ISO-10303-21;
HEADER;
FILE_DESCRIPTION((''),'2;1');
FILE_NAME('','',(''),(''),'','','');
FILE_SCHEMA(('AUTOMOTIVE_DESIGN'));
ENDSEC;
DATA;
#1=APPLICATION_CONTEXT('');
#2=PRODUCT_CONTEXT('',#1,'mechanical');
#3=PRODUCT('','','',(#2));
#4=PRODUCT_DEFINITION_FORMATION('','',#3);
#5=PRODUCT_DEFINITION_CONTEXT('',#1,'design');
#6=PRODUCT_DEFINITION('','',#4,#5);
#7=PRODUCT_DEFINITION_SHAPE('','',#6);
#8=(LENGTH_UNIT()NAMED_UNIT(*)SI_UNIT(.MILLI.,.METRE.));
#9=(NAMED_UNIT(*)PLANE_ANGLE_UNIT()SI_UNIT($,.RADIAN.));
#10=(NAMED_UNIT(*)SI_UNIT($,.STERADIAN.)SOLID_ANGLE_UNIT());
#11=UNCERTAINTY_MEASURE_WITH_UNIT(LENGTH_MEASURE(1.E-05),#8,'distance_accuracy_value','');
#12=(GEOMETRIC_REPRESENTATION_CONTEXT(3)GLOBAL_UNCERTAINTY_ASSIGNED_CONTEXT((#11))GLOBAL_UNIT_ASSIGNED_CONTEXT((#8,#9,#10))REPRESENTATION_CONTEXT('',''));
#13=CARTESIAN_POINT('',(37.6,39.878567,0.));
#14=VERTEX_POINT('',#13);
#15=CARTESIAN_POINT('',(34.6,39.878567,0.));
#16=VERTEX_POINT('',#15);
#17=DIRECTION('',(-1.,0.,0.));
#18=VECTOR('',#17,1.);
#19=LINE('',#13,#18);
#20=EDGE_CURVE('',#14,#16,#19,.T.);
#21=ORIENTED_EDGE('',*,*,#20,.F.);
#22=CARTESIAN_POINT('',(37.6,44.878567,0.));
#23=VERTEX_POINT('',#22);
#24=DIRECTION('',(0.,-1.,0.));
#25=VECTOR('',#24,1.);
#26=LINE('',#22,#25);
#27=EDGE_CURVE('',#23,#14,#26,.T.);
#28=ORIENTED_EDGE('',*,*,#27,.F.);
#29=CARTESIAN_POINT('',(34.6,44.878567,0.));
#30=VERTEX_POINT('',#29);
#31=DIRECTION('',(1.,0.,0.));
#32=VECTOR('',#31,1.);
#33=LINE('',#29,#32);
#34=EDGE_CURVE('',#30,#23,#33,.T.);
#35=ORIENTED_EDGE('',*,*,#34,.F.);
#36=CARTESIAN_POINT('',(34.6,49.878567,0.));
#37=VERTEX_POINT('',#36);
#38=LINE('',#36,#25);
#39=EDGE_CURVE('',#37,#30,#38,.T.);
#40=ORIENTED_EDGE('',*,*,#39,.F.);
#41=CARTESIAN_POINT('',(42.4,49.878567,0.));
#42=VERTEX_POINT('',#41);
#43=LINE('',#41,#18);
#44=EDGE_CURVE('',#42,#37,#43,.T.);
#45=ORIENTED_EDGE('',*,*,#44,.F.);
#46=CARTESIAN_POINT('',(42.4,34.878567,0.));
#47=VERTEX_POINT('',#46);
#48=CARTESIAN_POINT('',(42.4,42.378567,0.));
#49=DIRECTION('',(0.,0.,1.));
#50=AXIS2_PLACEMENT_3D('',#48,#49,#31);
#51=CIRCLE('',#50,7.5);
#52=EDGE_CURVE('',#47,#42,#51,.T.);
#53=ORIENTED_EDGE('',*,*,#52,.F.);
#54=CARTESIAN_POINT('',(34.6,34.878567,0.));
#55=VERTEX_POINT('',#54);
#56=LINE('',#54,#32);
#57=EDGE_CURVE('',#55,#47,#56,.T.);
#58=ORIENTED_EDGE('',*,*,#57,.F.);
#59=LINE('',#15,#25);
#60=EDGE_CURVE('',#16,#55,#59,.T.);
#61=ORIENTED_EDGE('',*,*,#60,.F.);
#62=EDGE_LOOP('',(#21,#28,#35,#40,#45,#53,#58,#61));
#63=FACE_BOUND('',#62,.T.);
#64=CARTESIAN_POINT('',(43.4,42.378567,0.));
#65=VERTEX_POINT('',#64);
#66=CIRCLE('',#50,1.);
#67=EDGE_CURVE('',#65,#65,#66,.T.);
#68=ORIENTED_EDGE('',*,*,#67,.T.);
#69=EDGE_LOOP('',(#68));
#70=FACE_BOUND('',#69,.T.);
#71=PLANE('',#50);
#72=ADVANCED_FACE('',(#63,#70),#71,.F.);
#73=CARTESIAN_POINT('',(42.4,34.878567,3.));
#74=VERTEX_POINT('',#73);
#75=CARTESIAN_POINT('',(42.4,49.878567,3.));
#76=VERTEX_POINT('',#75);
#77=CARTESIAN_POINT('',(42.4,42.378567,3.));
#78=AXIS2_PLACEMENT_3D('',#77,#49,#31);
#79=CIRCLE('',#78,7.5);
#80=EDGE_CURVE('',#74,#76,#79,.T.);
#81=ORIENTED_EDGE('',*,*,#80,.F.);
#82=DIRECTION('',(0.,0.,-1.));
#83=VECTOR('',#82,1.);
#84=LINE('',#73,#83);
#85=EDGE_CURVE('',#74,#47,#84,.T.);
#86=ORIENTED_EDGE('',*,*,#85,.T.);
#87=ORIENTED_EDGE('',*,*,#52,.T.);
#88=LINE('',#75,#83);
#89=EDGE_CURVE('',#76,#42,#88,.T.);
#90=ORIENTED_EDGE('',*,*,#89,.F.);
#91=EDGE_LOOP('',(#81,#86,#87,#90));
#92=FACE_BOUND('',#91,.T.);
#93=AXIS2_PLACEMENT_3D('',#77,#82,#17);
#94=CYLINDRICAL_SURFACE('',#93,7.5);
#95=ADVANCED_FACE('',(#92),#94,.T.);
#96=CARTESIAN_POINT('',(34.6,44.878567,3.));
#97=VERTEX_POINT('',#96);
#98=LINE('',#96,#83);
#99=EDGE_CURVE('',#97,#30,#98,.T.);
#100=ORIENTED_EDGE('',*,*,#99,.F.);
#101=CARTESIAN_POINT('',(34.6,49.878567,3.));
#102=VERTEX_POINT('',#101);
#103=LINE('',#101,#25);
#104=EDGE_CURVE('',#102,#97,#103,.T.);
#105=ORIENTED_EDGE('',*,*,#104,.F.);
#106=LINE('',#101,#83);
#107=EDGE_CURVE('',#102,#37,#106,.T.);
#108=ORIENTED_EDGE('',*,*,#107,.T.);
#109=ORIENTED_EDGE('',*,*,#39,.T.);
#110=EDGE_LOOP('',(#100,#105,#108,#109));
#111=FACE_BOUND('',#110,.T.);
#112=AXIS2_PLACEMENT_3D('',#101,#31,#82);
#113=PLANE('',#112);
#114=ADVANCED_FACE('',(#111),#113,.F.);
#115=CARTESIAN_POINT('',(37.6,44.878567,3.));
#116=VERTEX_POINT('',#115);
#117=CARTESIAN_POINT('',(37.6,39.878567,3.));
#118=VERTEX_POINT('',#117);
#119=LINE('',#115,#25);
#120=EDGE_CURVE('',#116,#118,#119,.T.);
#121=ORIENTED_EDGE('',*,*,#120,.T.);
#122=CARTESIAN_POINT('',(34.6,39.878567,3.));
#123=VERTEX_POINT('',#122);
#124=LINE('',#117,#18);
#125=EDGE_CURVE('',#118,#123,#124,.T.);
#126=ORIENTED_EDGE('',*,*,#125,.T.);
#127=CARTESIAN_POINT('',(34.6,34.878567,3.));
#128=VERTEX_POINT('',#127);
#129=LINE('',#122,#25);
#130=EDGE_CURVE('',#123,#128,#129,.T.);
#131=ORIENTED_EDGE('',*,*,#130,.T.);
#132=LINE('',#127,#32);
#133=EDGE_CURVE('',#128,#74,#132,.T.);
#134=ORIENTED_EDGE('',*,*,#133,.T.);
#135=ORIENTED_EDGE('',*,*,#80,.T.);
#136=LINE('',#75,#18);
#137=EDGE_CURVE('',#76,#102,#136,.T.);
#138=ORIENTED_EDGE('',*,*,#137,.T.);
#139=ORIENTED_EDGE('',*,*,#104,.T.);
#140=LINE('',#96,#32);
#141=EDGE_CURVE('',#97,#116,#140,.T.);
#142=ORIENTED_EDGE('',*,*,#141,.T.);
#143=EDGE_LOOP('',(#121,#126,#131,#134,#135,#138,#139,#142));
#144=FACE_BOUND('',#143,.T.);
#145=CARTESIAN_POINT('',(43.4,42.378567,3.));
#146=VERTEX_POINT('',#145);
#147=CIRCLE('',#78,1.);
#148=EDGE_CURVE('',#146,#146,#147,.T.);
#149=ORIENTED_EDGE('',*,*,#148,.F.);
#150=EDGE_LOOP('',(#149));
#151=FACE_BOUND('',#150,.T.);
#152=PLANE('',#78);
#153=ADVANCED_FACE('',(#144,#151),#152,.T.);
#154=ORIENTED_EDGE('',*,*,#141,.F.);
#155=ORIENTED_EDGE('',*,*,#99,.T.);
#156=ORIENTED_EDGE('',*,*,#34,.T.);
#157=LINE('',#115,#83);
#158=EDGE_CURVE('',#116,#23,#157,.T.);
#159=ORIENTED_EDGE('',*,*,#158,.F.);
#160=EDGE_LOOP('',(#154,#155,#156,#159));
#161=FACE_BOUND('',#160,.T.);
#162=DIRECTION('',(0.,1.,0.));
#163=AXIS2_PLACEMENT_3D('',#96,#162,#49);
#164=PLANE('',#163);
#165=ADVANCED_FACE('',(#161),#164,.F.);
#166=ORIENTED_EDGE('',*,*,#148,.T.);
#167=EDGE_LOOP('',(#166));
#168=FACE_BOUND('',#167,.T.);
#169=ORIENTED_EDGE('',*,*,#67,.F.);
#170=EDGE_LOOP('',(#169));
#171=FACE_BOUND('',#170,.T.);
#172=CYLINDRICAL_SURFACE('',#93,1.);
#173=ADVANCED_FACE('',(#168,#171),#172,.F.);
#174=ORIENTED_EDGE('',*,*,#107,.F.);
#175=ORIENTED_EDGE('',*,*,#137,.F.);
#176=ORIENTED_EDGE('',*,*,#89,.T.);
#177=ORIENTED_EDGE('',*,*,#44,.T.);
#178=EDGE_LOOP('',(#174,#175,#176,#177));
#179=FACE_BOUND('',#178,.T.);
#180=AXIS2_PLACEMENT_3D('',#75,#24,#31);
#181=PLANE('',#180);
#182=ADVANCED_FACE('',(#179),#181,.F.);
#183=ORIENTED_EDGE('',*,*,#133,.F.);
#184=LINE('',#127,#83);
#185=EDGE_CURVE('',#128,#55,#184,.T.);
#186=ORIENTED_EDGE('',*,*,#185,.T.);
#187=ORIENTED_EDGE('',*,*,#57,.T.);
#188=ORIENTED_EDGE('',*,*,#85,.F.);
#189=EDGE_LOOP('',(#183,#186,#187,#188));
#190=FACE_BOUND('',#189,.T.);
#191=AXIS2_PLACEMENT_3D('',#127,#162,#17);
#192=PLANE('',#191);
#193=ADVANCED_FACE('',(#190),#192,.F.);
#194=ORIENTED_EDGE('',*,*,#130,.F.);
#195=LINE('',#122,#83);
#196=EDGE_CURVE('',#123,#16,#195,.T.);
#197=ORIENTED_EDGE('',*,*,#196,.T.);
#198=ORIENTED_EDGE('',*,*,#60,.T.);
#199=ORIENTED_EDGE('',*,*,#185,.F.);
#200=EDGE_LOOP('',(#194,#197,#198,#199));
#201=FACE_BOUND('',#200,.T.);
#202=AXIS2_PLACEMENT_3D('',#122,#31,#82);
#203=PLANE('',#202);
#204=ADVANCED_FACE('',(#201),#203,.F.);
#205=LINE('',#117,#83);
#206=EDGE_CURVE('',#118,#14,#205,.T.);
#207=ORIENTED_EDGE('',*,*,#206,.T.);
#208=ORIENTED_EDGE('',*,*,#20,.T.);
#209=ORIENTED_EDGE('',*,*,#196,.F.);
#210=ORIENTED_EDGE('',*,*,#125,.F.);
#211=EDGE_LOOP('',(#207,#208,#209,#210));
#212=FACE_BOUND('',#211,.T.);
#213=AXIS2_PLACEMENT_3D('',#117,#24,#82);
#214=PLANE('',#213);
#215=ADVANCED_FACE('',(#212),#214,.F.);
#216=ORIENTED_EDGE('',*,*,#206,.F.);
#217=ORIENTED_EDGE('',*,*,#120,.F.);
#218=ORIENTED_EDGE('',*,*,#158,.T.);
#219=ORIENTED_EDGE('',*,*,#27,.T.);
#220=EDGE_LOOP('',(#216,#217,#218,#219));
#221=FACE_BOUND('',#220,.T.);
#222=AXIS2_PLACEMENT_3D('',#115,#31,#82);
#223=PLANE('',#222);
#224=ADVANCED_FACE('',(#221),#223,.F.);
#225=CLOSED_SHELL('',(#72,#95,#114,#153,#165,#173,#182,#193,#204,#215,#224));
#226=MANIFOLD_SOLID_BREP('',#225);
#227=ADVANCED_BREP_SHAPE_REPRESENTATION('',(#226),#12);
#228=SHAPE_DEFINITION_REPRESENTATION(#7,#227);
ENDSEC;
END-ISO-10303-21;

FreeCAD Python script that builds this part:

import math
import FreeCAD as App
import Part
import Sketcher
Q = App.Units.Quantity

doc = App.newDocument("Part")
body = doc.addObject("PartDesign::Body", "Body")

sketch1 = doc.addObject("Sketcher::SketchObject", "Sketch")
body.addObject(sketch1)
sketch1.AttachmentSupport = (doc.XY_Plane, [""])
sketch1.MapMode = "FlatFace"
sketch1.addGeometry([
    Part.LineSegment(App.Vector(42.4, 49.9, 0), App.Vector(34.6, 49.9, 0)),
    Part.LineSegment(App.Vector(34.6, 49.9, 0), App.Vector(34.6, 44.9, 0)),
    Part.LineSegment(App.Vector(34.6, 44.9, 0), App.Vector(37.6, 44.9, 0)),
    Part.LineSegment(App.Vector(37.6, 44.9, 0), App.Vector(37.6, 39.9, 0)),
    Part.LineSegment(App.Vector(37.6, 39.9, 0), App.Vector(34.6, 39.9, 0)),
    Part.LineSegment(App.Vector(34.6, 39.9, 0), App.Vector(34.6, 34.9, 0)),
    Part.LineSegment(App.Vector(34.6, 34.9, 0), App.Vector(42.4, 34.9, 0)),
    Part.ArcOfCircle(Part.Circle(App.Vector(42.4, 42.4, 0), App.Vector(0, 0, 1), 7.5), math.radians(-90), math.radians(90)),
    Part.Circle(App.Vector(42.4, 42.4, 0), App.Vector(0, 0, 1), 1),
], False)
sketch1.addConstraint([
    Sketcher.Constraint("Coincident", 0, 2, 1, 1),
    Sketcher.Constraint("Coincident", 1, 2, 2, 1),
    Sketcher.Constraint("Coincident", 2, 2, 3, 1),
    Sketcher.Constraint("Coincident", 3, 2, 4, 1),
    Sketcher.Constraint("Coincident", 4, 2, 5, 1),
    Sketcher.Constraint("Coincident", 5, 2, 6, 1),
    Sketcher.Constraint("Tangent", 6, 2, 7, 1),
    Sketcher.Constraint("Tangent", 7, 2, 0, 1),
    Sketcher.Constraint("Horizontal", 0),
    Sketcher.Constraint("Vertical", 1),
    Sketcher.Constraint("Horizontal", 2),
    Sketcher.Constraint("Vertical", 3),
    Sketcher.Constraint("Horizontal", 4),
    Sketcher.Constraint("Vertical", 5),
    Sketcher.Constraint("Horizontal", 6),
    Sketcher.Constraint("Coincident", 8, 3, 7, 3),
    Sketcher.Constraint("Vertical", 1, 2, 4, 2),
    Sketcher.Constraint("Equal", 1, 3),
    Sketcher.Constraint("Equal", 3, 5),
    Sketcher.Constraint("Diameter", 8, Q("2 mm")),
    Sketcher.Constraint("Radius", 7, Q("7.5 mm")),
    Sketcher.Constraint("DistanceX", 2, 1, 2, 2, Q("3 mm")),
    Sketcher.Constraint("DistanceX", 0, 2, 0, 1, Q("7.8 mm")),
    Sketcher.Constraint("DistanceX", -1, 1, 7, 3, Q("42.4 mm")),
    Sketcher.Constraint("DistanceY", -1, 1, 7, 3, Q("42.378567 mm")),
])
pad1 = doc.addObject("PartDesign::Pad", "Pad")
body.addObject(pad1)
pad1.Profile = sketch1
pad1.Length = 3

doc.recompute()
